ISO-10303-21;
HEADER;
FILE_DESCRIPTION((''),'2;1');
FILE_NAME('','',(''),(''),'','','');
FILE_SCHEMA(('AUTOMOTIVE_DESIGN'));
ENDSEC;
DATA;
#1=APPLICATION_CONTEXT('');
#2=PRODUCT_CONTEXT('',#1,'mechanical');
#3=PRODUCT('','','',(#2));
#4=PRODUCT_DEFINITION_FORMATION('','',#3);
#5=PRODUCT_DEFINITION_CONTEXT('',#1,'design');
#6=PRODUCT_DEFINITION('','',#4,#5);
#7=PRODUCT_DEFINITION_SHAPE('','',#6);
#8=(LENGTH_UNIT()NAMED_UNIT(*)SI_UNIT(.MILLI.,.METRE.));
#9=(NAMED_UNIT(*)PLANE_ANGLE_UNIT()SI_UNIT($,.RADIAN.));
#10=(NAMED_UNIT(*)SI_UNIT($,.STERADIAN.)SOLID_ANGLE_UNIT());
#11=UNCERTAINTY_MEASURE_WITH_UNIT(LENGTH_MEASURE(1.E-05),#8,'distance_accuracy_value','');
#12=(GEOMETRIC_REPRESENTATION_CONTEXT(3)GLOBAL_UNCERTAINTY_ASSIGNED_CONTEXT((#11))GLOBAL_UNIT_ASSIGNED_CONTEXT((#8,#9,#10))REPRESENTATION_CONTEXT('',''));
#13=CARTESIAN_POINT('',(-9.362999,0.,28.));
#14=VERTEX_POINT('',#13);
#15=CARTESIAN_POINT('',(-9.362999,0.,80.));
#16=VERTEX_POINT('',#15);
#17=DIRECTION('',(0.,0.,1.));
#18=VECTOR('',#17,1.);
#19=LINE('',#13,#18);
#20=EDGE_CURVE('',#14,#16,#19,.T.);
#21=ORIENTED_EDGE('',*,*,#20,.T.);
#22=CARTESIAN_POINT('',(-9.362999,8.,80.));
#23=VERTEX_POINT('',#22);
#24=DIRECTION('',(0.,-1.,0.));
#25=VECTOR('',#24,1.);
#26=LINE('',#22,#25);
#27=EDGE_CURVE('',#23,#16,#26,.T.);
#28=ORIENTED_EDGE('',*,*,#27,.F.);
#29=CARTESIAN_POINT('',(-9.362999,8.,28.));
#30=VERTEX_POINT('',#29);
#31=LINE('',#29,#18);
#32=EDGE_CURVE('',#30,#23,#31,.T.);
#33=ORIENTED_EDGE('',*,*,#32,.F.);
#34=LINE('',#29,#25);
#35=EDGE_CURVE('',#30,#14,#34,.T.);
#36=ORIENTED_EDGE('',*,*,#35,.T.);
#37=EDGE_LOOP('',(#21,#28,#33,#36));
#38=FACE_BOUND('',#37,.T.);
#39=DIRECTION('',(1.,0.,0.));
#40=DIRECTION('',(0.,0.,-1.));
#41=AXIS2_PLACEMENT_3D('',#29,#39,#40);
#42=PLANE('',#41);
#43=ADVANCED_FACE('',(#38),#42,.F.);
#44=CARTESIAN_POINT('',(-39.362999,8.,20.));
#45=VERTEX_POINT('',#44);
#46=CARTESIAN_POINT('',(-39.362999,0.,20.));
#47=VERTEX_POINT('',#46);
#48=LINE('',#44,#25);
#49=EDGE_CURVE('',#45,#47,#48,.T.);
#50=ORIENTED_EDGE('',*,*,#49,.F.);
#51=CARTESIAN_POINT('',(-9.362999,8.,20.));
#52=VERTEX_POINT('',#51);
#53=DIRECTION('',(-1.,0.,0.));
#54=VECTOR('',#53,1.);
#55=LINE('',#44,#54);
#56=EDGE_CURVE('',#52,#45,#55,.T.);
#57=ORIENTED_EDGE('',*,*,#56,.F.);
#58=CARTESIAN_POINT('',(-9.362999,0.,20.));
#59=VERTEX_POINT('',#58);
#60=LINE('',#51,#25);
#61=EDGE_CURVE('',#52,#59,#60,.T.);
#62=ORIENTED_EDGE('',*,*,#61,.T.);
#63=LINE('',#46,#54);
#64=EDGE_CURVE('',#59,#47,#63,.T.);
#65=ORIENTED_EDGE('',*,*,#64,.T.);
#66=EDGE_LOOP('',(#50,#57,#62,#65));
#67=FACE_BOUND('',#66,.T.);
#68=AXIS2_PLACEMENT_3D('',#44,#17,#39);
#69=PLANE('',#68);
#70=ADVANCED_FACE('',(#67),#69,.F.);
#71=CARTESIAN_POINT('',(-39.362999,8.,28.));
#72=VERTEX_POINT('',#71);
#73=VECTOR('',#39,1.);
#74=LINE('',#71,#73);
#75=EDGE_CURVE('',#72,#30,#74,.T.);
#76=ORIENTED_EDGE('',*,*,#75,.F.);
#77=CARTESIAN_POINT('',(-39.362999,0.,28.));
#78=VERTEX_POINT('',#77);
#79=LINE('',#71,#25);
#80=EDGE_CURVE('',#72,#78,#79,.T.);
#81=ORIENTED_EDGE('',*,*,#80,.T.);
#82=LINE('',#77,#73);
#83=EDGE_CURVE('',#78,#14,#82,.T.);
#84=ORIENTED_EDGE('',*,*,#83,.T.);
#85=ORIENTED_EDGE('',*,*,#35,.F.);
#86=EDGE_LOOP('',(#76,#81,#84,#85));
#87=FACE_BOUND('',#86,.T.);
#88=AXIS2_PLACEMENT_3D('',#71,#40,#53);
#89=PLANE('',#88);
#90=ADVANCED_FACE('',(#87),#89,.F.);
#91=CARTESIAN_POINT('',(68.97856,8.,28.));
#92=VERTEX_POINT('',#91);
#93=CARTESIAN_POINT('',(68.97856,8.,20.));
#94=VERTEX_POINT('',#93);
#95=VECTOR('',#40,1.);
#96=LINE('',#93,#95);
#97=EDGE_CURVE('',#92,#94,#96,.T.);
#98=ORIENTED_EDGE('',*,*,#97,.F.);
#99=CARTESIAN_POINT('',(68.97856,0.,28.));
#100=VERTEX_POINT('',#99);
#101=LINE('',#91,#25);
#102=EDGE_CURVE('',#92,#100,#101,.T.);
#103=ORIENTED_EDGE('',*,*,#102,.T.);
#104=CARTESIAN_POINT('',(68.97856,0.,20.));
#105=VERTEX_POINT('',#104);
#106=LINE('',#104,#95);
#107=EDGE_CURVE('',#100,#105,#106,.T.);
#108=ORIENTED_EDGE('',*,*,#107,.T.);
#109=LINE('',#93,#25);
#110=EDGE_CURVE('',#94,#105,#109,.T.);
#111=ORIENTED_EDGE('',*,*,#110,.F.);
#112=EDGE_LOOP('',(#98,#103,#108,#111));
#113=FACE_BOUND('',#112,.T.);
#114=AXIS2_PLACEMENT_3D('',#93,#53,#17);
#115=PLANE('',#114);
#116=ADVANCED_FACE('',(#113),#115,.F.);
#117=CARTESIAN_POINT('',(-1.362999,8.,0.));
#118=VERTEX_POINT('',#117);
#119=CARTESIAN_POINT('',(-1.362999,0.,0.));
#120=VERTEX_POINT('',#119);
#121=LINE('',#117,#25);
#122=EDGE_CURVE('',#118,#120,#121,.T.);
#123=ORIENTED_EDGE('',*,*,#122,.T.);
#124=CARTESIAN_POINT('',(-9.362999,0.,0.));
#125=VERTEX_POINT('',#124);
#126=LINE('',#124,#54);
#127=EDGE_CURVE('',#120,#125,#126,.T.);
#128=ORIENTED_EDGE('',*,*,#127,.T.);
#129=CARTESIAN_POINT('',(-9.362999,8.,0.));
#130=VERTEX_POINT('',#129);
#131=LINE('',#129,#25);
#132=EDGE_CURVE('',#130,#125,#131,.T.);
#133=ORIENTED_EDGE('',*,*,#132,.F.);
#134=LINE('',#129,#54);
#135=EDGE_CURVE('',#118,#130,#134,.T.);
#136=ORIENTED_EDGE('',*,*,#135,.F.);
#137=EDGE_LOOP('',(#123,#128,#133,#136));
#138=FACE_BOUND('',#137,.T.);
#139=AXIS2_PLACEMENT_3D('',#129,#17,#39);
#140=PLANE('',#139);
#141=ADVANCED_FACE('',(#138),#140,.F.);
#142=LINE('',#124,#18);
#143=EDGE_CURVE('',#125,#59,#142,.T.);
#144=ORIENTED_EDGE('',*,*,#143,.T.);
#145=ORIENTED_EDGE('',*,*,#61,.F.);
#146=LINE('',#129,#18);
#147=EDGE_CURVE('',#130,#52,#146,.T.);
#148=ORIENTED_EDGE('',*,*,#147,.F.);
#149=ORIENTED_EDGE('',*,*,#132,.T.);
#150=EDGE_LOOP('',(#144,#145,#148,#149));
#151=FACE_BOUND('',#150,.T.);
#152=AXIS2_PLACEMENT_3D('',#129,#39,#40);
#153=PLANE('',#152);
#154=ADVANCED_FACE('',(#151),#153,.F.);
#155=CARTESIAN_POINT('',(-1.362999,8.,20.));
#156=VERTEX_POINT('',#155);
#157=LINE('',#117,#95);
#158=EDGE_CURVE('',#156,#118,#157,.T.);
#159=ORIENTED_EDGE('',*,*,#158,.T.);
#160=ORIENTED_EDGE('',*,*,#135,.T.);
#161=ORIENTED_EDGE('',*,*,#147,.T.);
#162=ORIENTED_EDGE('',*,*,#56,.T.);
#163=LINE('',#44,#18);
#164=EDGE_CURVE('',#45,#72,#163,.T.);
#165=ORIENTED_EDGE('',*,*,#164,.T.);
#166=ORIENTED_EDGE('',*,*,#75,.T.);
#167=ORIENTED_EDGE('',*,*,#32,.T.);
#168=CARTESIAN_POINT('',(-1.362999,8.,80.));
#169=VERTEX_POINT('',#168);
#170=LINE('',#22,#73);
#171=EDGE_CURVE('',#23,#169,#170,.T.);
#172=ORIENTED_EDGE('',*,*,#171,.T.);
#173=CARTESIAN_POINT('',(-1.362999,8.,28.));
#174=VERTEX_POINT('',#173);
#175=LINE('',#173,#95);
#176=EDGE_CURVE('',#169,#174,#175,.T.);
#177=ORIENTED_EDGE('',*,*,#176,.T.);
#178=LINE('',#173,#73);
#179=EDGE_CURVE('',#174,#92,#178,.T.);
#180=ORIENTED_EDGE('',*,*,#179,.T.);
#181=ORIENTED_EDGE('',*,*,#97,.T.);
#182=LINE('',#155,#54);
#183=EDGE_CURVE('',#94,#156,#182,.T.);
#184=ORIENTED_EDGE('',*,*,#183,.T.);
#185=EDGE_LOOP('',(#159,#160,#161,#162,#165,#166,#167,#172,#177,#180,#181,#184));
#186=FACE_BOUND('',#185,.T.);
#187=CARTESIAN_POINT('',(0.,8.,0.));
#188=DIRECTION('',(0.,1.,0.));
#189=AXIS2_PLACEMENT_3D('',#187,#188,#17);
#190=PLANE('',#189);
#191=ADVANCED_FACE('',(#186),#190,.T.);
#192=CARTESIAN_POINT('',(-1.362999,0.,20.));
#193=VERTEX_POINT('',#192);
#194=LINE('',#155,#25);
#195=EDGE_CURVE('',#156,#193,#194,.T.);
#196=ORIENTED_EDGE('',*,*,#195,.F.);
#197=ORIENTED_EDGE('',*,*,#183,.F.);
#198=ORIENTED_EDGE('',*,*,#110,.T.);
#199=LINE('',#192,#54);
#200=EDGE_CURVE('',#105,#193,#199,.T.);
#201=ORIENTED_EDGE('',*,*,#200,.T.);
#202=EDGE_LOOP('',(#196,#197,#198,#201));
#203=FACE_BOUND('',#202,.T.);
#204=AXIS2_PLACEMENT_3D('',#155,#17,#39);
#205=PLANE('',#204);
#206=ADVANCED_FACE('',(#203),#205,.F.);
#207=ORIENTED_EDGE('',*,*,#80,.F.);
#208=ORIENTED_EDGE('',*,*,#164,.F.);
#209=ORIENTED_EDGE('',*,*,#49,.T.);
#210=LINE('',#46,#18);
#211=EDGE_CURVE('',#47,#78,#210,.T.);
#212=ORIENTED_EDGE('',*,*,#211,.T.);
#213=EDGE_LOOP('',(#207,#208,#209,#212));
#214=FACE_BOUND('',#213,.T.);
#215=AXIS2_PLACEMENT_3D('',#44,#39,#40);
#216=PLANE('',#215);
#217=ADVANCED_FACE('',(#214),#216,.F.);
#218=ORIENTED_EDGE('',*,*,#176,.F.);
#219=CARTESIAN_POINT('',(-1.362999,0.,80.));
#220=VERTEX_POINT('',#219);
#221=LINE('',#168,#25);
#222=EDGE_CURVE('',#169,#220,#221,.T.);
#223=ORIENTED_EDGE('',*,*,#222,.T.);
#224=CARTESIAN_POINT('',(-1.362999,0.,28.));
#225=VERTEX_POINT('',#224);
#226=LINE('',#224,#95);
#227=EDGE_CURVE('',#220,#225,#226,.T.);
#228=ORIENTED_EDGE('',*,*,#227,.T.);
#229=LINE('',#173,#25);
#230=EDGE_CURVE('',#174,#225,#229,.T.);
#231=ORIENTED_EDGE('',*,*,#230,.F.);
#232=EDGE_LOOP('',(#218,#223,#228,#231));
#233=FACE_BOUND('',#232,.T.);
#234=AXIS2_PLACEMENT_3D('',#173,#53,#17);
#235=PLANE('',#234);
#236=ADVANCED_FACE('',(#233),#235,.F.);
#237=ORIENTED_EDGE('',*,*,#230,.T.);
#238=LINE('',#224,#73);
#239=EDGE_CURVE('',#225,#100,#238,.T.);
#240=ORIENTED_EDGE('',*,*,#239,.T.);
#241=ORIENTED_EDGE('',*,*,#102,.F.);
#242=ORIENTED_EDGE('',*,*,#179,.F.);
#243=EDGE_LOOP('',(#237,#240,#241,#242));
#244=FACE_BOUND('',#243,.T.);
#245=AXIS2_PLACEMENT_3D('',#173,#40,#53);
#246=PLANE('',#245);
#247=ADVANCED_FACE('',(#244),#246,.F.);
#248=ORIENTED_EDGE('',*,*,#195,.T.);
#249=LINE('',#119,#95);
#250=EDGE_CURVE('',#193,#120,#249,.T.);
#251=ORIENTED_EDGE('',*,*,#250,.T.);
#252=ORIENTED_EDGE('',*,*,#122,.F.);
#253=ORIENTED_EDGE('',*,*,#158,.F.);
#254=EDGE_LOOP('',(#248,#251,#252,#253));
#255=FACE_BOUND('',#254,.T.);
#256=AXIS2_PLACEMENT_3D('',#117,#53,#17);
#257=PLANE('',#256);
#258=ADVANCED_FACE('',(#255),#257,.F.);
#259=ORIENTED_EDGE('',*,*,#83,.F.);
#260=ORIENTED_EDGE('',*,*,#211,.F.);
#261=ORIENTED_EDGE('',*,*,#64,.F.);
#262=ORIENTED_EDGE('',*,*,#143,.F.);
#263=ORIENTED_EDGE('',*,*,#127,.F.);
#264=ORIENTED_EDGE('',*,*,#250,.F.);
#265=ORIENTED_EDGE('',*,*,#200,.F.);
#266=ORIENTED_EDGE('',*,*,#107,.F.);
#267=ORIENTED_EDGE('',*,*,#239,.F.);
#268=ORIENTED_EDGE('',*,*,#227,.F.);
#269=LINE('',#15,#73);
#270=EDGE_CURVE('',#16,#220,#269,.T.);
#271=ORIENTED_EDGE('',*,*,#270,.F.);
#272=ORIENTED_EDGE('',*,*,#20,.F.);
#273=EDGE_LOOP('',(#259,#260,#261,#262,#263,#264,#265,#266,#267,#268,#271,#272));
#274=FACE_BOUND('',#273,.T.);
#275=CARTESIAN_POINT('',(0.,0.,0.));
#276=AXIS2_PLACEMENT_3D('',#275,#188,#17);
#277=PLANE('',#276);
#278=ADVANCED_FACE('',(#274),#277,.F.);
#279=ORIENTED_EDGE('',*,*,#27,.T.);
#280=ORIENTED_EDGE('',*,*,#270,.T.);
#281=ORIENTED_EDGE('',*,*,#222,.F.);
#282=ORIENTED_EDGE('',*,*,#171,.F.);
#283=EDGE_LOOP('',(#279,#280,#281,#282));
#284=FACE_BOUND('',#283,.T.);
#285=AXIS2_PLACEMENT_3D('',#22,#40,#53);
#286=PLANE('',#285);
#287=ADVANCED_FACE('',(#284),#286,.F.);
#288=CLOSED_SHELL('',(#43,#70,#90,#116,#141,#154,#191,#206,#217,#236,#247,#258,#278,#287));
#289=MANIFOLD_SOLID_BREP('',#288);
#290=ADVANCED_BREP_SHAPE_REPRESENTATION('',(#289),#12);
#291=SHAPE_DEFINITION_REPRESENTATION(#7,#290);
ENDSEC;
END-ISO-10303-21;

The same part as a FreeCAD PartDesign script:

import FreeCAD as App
import Part
import Sketcher

doc = App.newDocument("Part")
params = doc.addObject("Spreadsheet::Sheet", "Params")
for row, (alias, value) in enumerate([
    ("sketch1_width", "8 mm"),
    ("sketch1_width2", "30 mm"),
    ("sketch1_height", "52 mm"),
    ("sketch1_height2", "20 mm"),
    ("pad1_length", "8 mm"),
], start=1):
    params.set(f"A{row}", alias)
    params.set(f"B{row}", "=" + value)
    params.setAlias(f"B{row}", alias)

body = doc.addObject("PartDesign::Body", "Body")

# Sketch on XZ plane
sketch1 = body.newObject("Sketcher::SketchObject", "Sketch")
sketch1.AttachmentSupport = (doc.getObject("XZ_Plane"), [""])
sketch1.MapMode = "FlatFace"
sketch1.addGeometry(Part.LineSegment(App.Vector(-9, 28, 0), App.Vector(-9, 80, 0)), False)
sketch1.addGeometry(Part.LineSegment(App.Vector(-9, 80, 0), App.Vector(-1, 80, 0)), False)
sketch1.addGeometry(Part.LineSegment(App.Vector(-1, 80, 0), App.Vector(-1, 28, 0)), False)
sketch1.addGeometry(Part.LineSegment(App.Vector(-1, 28, 0), App.Vector(69, 28, 0)), False)
sketch1.addGeometry(Part.LineSegment(App.Vector(69, 28, 0), App.Vector(69, 20, 0)), False)
sketch1.addGeometry(Part.LineSegment(App.Vector(69, 20, 0), App.Vector(-1, 20, 0)), False)
sketch1.addGeometry(Part.LineSegment(App.Vector(-1, 20, 0), App.Vector(-1, 0, 0)), False)
sketch1.addGeometry(Part.LineSegment(App.Vector(-1, 0, 0), App.Vector(-9, 0, 0)), False)
sketch1.addGeometry(Part.LineSegment(App.Vector(-9, 0, 0), App.Vector(-9, 20, 0)), False)
sketch1.addGeometry(Part.LineSegment(App.Vector(-9, 20, 0), App.Vector(-39, 20, 0)), False)
sketch1.addGeometry(Part.LineSegment(App.Vector(-39, 20, 0), App.Vector(-39, 28, 0)), False)
sketch1.addGeometry(Part.LineSegment(App.Vector(-39, 28, 0), App.Vector(-9, 28, 0)), False)
sketch1.addConstraint(Sketcher.Constraint("Coincident", 0, 2, 1, 1))
sketch1.addConstraint(Sketcher.Constraint("Coincident", 1, 2, 2, 1))
sketch1.addConstraint(Sketcher.Constraint("Coincident", 2, 2, 3, 1))
sketch1.addConstraint(Sketcher.Constraint("Coincident", 3, 2, 4, 1))
sketch1.addConstraint(Sketcher.Constraint("Coincident", 4, 2, 5, 1))
sketch1.addConstraint(Sketcher.Constraint("Coincident", 5, 2, 6, 1))
sketch1.addConstraint(Sketcher.Constraint("Coincident", 6, 2, 7, 1))
sketch1.addConstraint(Sketcher.Constraint("Coincident", 7, 2, 8, 1))
sketch1.addConstraint(Sketcher.Constraint("Coincident", 8, 2, 9, 1))
sketch1.addConstraint(Sketcher.Constraint("Coincident", 9, 2, 10, 1))
sketch1.addConstraint(Sketcher.Constraint("Coincident", 10, 2, 11, 1))
sketch1.addConstraint(Sketcher.Constraint("Coincident", 11, 2, 0, 1))
sketch1.addConstraint(Sketcher.Constraint("Vertical", 0))
sketch1.addConstraint(Sketcher.Constraint("Horizontal", 1))
sketch1.addConstraint(Sketcher.Constraint("Vertical", 2))
sketch1.addConstraint(Sketcher.Constraint("Horizontal", 3))
sketch1.addConstraint(Sketcher.Constraint("Vertical", 4))
sketch1.addConstraint(Sketcher.Constraint("Horizontal", 5))
sketch1.addConstraint(Sketcher.Constraint("Vertical", 6))
sketch1.addConstraint(Sketcher.Constraint("Horizontal", 7))
sketch1.addConstraint(Sketcher.Constraint("Vertical", 8))
sketch1.addConstraint(Sketcher.Constraint("Horizontal", 9))
sketch1.addConstraint(Sketcher.Constraint("Vertical", 10))
sketch1.addConstraint(Sketcher.Constraint("Horizontal", 11))
sketch1.addConstraint(Sketcher.Constraint("PointOnObject", 6, 2, -1))
sketch1.addConstraint(Sketcher.Constraint("Horizontal", 5, 2, 8, 2))
sketch1.addConstraint(Sketcher.Constraint("Horizontal", 3, 2, 10, 2))
sketch1.addConstraint(Sketcher.Constraint("Vertical", 2, 2, 5, 2))
sketch1.addConstraint(Sketcher.Constraint("Vertical", 0, 2, 7, 2))
sketch1.addConstraint(Sketcher.Constraint("Equal", 7, 4))
sketch1.addConstraint(Sketcher.Constraint("DistanceX", 1, 1, 1, 2, 8.0))
sketch1.addConstraint(Sketcher.Constraint("DistanceX", 9, 2, 9, 1, 30.0))
sketch1.addConstraint(Sketcher.Constraint("DistanceY", 0, 1, 0, 2, 52.0))
sketch1.addConstraint(Sketcher.Constraint("DistanceY", 6, 2, 6, 1, 20.0))
sketch1.addConstraint(Sketcher.Constraint("DistanceX", 0, 2, -1, 1, 9.362999))
sketch1.addConstraint(Sketcher.Constraint("DistanceX", 3, 1, 3, 2, 70.341559))
sketch1.setExpression("Constraints[30]", "Params.sketch1_width")
sketch1.setExpression("Constraints[31]", "Params.sketch1_width2")
sketch1.setExpression("Constraints[32]", "Params.sketch1_height")
sketch1.setExpression("Constraints[33]", "Params.sketch1_height2")
pad1 = body.newObject("PartDesign::Pad", "Pad")
pad1.Profile = sketch1
pad1.setExpression("Length", "Params.pad1_length")
pad1.Reversed = True

doc.recompute()
